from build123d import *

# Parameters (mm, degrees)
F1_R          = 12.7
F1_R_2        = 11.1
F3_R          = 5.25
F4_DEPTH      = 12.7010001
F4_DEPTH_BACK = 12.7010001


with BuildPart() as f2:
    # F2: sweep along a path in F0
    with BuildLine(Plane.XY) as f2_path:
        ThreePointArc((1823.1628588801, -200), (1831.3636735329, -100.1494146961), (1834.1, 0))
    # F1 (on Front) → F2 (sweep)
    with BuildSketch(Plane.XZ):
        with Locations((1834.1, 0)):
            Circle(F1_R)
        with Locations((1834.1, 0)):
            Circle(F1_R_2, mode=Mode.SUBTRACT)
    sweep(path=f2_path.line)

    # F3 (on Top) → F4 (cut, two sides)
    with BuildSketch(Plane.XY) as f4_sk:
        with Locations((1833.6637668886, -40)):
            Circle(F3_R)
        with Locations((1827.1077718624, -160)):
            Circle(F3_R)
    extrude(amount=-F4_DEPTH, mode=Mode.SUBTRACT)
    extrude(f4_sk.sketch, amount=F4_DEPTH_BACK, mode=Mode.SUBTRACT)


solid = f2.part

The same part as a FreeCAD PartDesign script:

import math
import FreeCAD as App
import Part
import Sketcher

V = App.Vector
Q = App.Units.Quantity

doc = App.newDocument("Part")
body = doc.addObject("PartDesign::Body", "Body")

sketch1 = body.newObject("Sketcher::SketchObject", "Sketch")
sketch1.AttachmentSupport = (doc.getObject("XZ_Plane"), [""])
sketch1.MapMode = "FlatFace"
sketch1.addGeometry(Part.Circle(V(1834, 0, 0), V(0, 0, 1), 13), False)
sketch1.addGeometry(Part.Circle(V(1834, 0, 0), V(0, 0, 1), 11), False)
sketch1.addConstraint(Sketcher.Constraint("Coincident", 1, 3, 0, 3))
sketch1.addConstraint(Sketcher.Constraint("PointOnObject", 0, 3, -1))
sketch1.addConstraint(Sketcher.Constraint("Diameter", 0, Q("25.4 mm")))
sketch1.addConstraint(Sketcher.Constraint("Diameter", 1, Q("22.2 mm")))
sketch1.addConstraint(Sketcher.Constraint("DistanceX", -1, 1, 0, 3, Q("1834.1 mm")))

sketch2 = body.newObject("Sketcher::SketchObject", "Sketch001")
sketch2.AttachmentSupport = (doc.getObject("XY_Plane"), [""])
sketch2.MapMode = "FlatFace"
sketch2.addGeometry(Part.ArcOfCircle(Part.Circle(V(0, 0, 0), V(0, 0, 1), 1834), math.radians(-6.26), math.radians(0)), False)
sketch2.addConstraint(Sketcher.Constraint("Coincident", 0, 3, -1, 1))
sketch2.addConstraint(Sketcher.Constraint("PointOnObject", 0, 2, -1))
sketch2.addConstraint(Sketcher.Constraint("Radius", 0, Q("1834.1 mm")))
sketch2.addConstraint(Sketcher.Constraint("DistanceY", 0, 1, -1, 1, Q("200 mm")))
doc.recompute()

additivepipe = body.newObject("PartDesign::AdditivePipe", "AdditivePipe")
additivepipe.Profile = sketch1
additivepipe.Spine = (sketch2, ["Edge1"])

sketch3 = body.newObject("Sketcher::SketchObject", "Sketch002")
sketch3.AttachmentSupport = (doc.getObject("XY_Plane"), [""])
sketch3.MapMode = "FlatFace"
sketch3.addGeometry(Part.Circle(V(1834, -40, 0), V(0, 0, 1), 5), False)
sketch3.addGeometry(Part.Circle(V(1827, -160, 0), V(0, 0, 1), 5), False)
sketch3.addConstraint(Sketcher.Constraint("Equal", 0, 1))
sketch3.addConstraint(Sketcher.Constraint("Diameter", 0, Q("10.5 mm")))
sketch3.addConstraint(Sketcher.Constraint("DistanceY", 0, 3, -1, 1, Q("40 mm")))
sketch3.addConstraint(Sketcher.Constraint("DistanceY", 1, 3, -1, 1, Q("160 mm")))
sketch3.addConstraint(Sketcher.Constraint("DistanceX", -1, 1, 1, 3, Q("1827.107772 mm")))
sketch3.addConstraint(Sketcher.Constraint("DistanceX", -1, 1, 0, 3, Q("1833.663767 mm")))
pocket1 = body.newObject("PartDesign::Pocket", "Pocket")
pocket1.Profile = sketch3
pocket1.Type = "ThroughAll"
pocket1.Midplane = True

doc.recompute()
